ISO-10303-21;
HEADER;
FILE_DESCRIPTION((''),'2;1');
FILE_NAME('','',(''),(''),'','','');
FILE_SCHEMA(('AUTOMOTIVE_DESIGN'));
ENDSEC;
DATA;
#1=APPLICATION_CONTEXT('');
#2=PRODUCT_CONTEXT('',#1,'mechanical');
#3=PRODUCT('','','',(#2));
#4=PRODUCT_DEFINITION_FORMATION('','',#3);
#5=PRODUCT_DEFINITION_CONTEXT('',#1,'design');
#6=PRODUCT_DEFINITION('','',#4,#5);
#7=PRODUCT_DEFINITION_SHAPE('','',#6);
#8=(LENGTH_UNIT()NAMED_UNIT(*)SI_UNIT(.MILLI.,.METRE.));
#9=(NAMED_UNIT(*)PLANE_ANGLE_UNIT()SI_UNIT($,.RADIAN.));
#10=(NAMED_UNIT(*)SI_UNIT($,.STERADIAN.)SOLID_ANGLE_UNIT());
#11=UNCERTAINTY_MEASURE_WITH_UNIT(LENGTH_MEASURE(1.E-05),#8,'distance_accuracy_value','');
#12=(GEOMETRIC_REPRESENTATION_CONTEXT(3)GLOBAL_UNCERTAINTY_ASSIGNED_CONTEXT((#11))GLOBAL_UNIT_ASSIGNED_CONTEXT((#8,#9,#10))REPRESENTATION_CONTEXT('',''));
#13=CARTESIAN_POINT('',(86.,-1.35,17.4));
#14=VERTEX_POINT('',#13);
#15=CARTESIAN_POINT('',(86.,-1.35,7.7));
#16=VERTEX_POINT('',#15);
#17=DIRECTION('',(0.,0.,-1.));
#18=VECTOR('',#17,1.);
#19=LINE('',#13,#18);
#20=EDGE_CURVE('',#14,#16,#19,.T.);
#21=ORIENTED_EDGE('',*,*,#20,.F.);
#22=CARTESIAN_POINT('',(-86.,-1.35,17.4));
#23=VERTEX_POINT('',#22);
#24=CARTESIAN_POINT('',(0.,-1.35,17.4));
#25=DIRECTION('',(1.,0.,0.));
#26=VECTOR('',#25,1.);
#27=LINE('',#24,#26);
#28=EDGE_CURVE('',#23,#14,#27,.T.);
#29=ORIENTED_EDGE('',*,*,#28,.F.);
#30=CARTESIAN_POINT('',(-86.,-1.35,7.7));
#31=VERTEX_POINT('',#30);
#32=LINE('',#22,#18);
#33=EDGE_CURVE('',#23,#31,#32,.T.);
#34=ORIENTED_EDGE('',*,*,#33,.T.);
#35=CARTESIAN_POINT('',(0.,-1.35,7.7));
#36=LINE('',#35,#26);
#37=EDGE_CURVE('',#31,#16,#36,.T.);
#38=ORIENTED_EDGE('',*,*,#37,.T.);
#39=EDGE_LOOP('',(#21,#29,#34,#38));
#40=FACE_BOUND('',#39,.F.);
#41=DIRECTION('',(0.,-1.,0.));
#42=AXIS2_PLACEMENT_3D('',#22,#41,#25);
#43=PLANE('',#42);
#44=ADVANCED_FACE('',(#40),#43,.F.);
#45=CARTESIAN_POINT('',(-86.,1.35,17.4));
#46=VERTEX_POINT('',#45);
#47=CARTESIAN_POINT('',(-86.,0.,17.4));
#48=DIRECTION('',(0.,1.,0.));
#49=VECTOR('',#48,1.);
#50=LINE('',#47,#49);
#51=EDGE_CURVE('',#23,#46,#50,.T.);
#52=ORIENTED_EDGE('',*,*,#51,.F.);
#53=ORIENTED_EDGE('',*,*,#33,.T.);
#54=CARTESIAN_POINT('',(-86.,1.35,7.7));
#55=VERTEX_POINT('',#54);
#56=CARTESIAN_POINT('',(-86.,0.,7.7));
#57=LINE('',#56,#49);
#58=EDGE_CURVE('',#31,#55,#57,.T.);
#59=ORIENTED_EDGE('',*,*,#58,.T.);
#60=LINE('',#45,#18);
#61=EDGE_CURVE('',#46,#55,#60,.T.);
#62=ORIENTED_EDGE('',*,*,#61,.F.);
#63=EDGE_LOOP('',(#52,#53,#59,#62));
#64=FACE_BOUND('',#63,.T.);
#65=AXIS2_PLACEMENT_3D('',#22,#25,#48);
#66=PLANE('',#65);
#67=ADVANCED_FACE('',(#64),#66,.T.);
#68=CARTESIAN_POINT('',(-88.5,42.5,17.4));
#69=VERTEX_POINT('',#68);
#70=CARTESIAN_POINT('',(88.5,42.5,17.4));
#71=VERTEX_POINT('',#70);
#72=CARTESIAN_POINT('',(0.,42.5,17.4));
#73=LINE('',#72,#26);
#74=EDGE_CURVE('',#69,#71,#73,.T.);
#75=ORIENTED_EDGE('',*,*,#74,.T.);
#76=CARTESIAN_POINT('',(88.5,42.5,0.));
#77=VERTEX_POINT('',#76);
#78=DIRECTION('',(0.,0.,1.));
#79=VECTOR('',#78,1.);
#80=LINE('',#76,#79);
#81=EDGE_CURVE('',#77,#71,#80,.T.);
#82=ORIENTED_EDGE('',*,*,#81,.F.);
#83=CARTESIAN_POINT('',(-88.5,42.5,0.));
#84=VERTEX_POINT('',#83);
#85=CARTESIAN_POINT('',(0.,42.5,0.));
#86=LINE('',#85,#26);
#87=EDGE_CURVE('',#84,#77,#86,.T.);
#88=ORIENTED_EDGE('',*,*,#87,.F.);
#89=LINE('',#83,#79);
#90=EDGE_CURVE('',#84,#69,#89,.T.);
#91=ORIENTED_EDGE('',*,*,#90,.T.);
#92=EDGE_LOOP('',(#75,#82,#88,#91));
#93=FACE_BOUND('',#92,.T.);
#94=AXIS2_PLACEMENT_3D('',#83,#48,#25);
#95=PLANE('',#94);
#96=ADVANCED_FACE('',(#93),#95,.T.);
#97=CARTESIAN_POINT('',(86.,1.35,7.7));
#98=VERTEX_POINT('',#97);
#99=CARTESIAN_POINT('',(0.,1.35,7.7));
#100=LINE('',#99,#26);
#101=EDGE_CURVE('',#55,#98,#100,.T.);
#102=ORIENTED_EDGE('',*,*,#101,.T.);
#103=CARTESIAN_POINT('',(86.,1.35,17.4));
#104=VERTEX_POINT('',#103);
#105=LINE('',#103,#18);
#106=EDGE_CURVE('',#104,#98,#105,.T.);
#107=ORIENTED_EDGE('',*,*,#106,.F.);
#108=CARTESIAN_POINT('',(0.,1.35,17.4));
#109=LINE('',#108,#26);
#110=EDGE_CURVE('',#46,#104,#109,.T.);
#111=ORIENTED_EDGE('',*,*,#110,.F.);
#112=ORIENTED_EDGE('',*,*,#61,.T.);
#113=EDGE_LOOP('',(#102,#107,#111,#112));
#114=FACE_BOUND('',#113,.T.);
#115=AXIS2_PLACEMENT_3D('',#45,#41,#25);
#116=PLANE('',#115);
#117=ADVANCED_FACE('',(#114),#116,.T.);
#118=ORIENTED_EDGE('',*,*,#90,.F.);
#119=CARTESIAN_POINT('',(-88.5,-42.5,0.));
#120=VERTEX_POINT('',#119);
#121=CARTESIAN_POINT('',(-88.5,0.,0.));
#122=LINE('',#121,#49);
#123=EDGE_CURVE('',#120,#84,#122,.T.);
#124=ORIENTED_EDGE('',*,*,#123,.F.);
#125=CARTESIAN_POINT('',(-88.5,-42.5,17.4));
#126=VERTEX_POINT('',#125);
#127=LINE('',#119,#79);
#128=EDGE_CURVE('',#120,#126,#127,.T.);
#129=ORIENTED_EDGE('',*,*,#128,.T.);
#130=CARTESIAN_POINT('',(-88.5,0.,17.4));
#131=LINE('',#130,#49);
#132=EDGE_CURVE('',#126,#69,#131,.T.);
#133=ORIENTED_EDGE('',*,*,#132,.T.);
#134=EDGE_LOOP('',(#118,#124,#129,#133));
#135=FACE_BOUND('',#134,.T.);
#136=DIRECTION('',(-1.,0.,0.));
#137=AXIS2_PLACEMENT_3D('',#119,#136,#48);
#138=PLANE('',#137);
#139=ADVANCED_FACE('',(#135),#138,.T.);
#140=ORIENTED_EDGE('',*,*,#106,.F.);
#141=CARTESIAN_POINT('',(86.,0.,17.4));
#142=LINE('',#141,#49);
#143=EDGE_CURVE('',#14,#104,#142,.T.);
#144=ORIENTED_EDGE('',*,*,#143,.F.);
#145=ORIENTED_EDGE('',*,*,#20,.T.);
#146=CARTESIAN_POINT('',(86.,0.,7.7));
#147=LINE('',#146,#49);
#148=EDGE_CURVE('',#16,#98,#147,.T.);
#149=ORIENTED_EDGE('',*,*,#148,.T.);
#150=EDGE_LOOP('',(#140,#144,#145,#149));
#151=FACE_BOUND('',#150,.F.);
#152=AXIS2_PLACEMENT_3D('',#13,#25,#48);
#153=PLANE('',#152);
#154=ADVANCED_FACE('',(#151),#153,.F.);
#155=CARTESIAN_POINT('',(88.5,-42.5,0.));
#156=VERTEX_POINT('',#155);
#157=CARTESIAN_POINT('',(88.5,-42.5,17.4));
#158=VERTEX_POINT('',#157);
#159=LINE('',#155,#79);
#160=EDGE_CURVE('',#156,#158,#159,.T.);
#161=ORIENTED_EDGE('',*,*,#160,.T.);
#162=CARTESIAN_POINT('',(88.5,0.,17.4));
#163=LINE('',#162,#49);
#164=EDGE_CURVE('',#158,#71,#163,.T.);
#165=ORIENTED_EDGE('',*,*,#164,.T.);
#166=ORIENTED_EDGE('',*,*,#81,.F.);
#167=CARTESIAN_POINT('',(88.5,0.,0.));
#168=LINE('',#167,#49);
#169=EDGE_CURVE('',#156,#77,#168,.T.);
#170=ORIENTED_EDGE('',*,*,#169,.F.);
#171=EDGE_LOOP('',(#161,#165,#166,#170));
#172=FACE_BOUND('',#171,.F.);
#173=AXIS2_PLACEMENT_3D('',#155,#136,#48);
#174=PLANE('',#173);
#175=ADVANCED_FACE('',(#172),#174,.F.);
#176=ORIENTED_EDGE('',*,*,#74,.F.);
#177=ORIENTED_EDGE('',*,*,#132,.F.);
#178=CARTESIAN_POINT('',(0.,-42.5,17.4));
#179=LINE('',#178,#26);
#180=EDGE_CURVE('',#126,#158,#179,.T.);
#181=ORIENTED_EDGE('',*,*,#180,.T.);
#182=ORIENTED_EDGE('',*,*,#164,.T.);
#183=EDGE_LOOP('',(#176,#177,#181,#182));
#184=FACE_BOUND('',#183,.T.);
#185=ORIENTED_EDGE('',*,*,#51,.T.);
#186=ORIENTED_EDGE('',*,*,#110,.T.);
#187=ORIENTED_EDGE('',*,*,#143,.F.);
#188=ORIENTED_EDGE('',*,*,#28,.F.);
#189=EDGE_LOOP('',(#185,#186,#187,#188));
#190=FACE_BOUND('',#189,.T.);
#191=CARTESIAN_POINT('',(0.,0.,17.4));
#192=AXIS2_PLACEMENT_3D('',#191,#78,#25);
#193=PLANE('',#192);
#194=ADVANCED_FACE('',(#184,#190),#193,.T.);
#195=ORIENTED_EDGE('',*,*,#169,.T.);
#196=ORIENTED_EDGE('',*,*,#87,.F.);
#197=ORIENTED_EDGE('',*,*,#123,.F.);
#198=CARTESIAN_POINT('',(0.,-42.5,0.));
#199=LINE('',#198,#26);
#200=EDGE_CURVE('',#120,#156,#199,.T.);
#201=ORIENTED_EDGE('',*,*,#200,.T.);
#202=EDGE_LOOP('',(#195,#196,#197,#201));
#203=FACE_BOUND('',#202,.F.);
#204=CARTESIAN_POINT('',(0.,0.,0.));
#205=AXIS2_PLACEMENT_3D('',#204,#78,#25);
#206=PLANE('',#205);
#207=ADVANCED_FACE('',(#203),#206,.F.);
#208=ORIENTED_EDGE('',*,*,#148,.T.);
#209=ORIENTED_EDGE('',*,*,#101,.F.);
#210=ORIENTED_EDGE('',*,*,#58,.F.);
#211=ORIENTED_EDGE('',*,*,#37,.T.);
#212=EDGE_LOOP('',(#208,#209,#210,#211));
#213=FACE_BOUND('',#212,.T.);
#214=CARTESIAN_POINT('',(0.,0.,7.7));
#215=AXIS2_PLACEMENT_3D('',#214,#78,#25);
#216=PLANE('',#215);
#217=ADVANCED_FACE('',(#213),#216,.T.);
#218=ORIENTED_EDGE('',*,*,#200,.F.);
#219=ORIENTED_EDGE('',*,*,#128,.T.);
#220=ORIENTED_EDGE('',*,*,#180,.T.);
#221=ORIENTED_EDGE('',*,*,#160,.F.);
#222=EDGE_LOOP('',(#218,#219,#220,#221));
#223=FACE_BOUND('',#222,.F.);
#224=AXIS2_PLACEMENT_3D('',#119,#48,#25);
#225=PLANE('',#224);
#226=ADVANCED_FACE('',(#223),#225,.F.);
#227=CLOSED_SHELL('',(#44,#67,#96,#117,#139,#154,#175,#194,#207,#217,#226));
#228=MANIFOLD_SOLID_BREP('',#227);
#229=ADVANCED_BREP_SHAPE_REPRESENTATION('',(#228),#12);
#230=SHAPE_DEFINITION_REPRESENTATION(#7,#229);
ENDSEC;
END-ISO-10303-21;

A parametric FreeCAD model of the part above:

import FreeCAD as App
import Part
import Sketcher

V = App.Vector

doc = App.newDocument("Part")
params = doc.addObject("Spreadsheet::Sheet", "Params")
for row, (alias, value) in enumerate([
    ("sketch1_width", "177 mm"),
    ("sketch1_height", "85 mm"),
    ("pad1_length", "17.4 mm"),
    ("sketch2_width", "172 mm"),
    ("sketch2_height", "2.7 mm"),
    ("pocket1_length", "9.7 mm"),
], start=1):
    params.set(f"A{row}", alias)
    params.set(f"B{row}", "=" + value)
    params.setAlias(f"B{row}", alias)

body = doc.addObject("PartDesign::Body", "Body")

sketch1 = doc.addObject("Sketcher::SketchObject", "Sketch")
body.addObject(sketch1)
sketch1.AttachmentSupport = (doc.XY_Plane, [""])
sketch1.MapMode = "FlatFace"
sketch1.addGeometry([
    Part.LineSegment(V(-88, 42, 0), V(-88, -42, 0)),
    Part.LineSegment(V(-88, -42, 0), V(88, -42, 0)),
    Part.LineSegment(V(88, -42, 0), V(88, 42, 0)),
    Part.LineSegment(V(88, 42, 0), V(-88, 42, 0)),
], False)
sketch1.addConstraint([
    Sketcher.Constraint("Coincident", 0, 2, 1, 1),
    Sketcher.Constraint("Coincident", 1, 2, 2, 1),
    Sketcher.Constraint("Coincident", 2, 2, 3, 1),
    Sketcher.Constraint("Coincident", 3, 2, 0, 1),
    Sketcher.Constraint("Vertical", 0),
    Sketcher.Constraint("Horizontal", 1),
    Sketcher.Constraint("Vertical", 2),
    Sketcher.Constraint("Horizontal", 3),
    Sketcher.Constraint("Symmetric", 0, 2, 2, 2, -1, 1),
    Sketcher.Constraint("DistanceX", 1, 1, 1, 2, 177.0),
    Sketcher.Constraint("DistanceY", 0, 2, 0, 1, 85.0),
])
sketch1.setExpression("Constraints[9]", "Params.sketch1_width")
sketch1.setExpression("Constraints[10]", "Params.sketch1_height")
pad1 = doc.addObject("PartDesign::Pad", "Pad")
body.addObject(pad1)
pad1.Profile = sketch1
pad1.setExpression("Length", "Params.pad1_length")

sketch2 = doc.addObject("Sketcher::SketchObject", "Sketch001")
body.addObject(sketch2)
sketch2.AttachmentSupport = (doc.XY_Plane, [""])
sketch2.MapMode = "FlatFace"
sketch2.AttachmentOffset = App.Placement(V(0, 0, 17.4), App.Rotation())
sketch2.addGeometry([
    Part.LineSegment(V(-86, 1.4, 0), V(-86, -1.4, 0)),
    Part.LineSegment(V(-86, -1.4, 0), V(86, -1.4, 0)),
    Part.LineSegment(V(86, -1.4, 0), V(86, 1.4, 0)),
    Part.LineSegment(V(86, 1.4, 0), V(-86, 1.4, 0)),
], False)
sketch2.addConstraint([
    Sketcher.Constraint("Coincident", 0, 2, 1, 1),
    Sketcher.Constraint("Coincident", 1, 2, 2, 1),
    Sketcher.Constraint("Coincident", 2, 2, 3, 1),
    Sketcher.Constraint("Coincident", 3, 2, 0, 1),
    Sketcher.Constraint("Vertical", 0),
    Sketcher.Constraint("Horizontal", 1),
    Sketcher.Constraint("Vertical", 2),
    Sketcher.Constraint("Horizontal", 3),
    Sketcher.Constraint("Symmetric", 0, 2, 2, 2, -1, 1),
    Sketcher.Constraint("DistanceX", 1, 1, 1, 2, 172.0),
    Sketcher.Constraint("DistanceY", 0, 2, 0, 1, 2.7),
])
sketch2.setExpression("Constraints[9]", "Params.sketch2_width")
sketch2.setExpression("Constraints[10]", "Params.sketch2_height")
pocket1 = doc.addObject("PartDesign::Pocket", "Pocket")
body.addObject(pocket1)
pocket1.Profile = sketch2
pocket1.setExpression("Length", "Params.pocket1_length")

doc.recompute()
